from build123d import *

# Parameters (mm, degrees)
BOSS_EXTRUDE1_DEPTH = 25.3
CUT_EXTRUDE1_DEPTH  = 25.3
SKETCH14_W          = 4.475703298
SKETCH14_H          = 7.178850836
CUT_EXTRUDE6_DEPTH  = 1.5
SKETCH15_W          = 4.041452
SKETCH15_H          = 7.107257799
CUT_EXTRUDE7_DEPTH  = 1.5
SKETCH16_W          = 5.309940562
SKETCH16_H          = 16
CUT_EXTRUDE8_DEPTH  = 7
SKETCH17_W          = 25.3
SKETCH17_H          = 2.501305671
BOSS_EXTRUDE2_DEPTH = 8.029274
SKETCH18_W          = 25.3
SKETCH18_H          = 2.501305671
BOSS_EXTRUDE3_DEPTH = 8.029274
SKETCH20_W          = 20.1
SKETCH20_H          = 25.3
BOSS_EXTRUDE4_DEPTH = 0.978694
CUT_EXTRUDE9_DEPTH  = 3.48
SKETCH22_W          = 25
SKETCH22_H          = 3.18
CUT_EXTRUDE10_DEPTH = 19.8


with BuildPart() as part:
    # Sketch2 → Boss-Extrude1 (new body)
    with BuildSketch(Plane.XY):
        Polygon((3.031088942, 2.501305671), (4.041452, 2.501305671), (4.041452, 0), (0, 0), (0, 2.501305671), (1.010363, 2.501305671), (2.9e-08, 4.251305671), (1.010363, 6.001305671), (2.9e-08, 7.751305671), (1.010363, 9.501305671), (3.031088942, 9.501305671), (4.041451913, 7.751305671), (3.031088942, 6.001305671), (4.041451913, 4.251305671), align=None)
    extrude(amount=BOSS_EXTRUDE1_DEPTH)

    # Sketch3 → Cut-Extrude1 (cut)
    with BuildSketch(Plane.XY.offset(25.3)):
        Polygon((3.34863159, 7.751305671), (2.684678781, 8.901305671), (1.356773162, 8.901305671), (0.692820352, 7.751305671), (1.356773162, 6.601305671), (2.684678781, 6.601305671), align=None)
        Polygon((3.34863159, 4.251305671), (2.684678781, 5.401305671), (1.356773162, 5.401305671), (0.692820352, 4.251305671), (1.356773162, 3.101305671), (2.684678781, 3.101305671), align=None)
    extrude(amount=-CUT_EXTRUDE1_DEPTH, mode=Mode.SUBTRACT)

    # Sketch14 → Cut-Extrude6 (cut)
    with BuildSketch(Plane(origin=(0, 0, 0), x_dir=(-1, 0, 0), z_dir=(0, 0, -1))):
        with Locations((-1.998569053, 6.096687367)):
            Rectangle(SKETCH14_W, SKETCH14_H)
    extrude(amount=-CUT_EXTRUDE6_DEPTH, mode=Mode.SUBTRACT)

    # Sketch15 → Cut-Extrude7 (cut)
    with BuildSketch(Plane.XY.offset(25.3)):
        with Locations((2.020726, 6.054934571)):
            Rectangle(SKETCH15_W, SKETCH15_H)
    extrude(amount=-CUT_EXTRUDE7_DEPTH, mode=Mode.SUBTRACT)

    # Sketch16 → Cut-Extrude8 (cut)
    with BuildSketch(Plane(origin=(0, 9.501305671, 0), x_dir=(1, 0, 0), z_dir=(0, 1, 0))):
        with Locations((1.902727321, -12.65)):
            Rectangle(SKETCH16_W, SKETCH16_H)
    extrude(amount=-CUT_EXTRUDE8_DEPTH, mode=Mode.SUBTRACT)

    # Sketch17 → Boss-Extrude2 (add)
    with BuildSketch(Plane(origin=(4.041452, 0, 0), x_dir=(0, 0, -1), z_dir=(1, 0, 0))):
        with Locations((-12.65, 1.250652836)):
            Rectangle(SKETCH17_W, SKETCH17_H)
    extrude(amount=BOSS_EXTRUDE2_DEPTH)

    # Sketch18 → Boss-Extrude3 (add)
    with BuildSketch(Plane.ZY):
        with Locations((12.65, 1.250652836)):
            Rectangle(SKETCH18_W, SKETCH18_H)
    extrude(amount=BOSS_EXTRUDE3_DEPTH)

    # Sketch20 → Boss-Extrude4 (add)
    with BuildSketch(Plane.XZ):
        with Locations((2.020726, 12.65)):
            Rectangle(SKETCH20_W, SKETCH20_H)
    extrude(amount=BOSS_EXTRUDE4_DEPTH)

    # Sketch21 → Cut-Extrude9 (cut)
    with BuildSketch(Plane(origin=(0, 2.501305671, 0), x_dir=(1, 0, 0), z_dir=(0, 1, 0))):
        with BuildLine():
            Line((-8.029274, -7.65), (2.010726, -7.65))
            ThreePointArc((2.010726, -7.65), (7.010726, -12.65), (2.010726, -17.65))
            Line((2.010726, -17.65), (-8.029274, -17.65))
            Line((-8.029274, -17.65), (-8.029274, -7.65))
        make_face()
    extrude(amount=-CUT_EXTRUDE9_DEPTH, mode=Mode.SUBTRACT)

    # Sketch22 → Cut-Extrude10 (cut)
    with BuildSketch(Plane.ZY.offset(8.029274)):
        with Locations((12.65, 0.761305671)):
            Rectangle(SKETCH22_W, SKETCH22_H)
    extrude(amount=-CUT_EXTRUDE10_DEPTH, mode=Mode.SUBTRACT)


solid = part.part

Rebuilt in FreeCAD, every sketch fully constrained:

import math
import FreeCAD as App
import Part
import Sketcher
Q = App.Units.Quantity

doc = App.newDocument("Part")
body = doc.addObject("PartDesign::Body", "Body")

sketch1 = body.newObject("Sketcher::SketchObject", "Sketch")
sketch1.AttachmentSupport = (doc.getObject("XY_Plane"), [""])
sketch1.MapMode = "FlatFace"
sketch1.addGeometry([
    Part.LineSegment(App.Vector(4, 2.5, 0), App.Vector(3, 2.5, 0)),
    Part.LineSegment(App.Vector(3, 2.5, 0), App.Vector(4, 4.3, 0)),
    Part.LineSegment(App.Vector(4, 4.3, 0), App.Vector(3, 6, 0)),
    Part.LineSegment(App.Vector(3, 6, 0), App.Vector(4, 7.8, 0)),
    Part.LineSegment(App.Vector(4, 7.8, 0), App.Vector(3, 9.5, 0)),
    Part.LineSegment(App.Vector(3, 9.5, 0), App.Vector(1, 9.5, 0)),
    Part.LineSegment(App.Vector(1, 9.5, 0), App.Vector(0, 7.8, 0)),
    Part.LineSegment(App.Vector(0, 7.8, 0), App.Vector(1, 6, 0)),
    Part.LineSegment(App.Vector(1, 6, 0), App.Vector(0, 4.3, 0)),
    Part.LineSegment(App.Vector(0, 4.3, 0), App.Vector(1, 2.5, 0)),
    Part.LineSegment(App.Vector(1, 2.5, 0), App.Vector(0, 2.5, 0)),
    Part.LineSegment(App.Vector(0, 2.5, 0), App.Vector(0, 0, 0)),
    Part.LineSegment(App.Vector(0, 0, 0), App.Vector(4, 0, 0)),
    Part.LineSegment(App.Vector(4, 0, 0), App.Vector(4, 2.5, 0)),
], False)
sketch1.addConstraint([
    Sketcher.Constraint("Coincident", 0, 2, 1, 1),
    Sketcher.Constraint("Coincident", 1, 2, 2, 1),
    Sketcher.Constraint("Coincident", 2, 2, 3, 1),
    Sketcher.Constraint("Coincident", 3, 2, 4, 1),
    Sketcher.Constraint("Coincident", 4, 2, 5, 1),
    Sketcher.Constraint("Coincident", 5, 2, 6, 1),
    Sketcher.Constraint("Coincident", 6, 2, 7, 1),
    Sketcher.Constraint("Coincident", 7, 2, 8, 1),
    Sketcher.Constraint("Coincident", 8, 2, 9, 1),
    Sketcher.Constraint("Coincident", 9, 2, 10, 1),
    Sketcher.Constraint("Coincident", 10, 2, 11, 1),
    Sketcher.Constraint("Coincident", 11, 2, 12, 1),
    Sketcher.Constraint("Coincident", 12, 2, 13, 1),
    Sketcher.Constraint("Coincident", 13, 2, 0, 1),
    Sketcher.Constraint("Horizontal", 0),
    Sketcher.Constraint("Horizontal", 5),
    Sketcher.Constraint("Horizontal", 10),
    Sketcher.Constraint("Vertical", 11),
    Sketcher.Constraint("Horizontal", 12),
    Sketcher.Constraint("Vertical", 13),
    Sketcher.Constraint("Coincident", 11, 2, -1, 1),
    Sketcher.Constraint("PointOnObject", 6, 2, -2),
    Sketcher.Constraint("PointOnObject", 8, 2, -2),
    Sketcher.Constraint("Parallel", 1, 3),
    Sketcher.Constraint("Parallel", 2, 4),
    Sketcher.Constraint("Parallel", 3, 6),
    Sketcher.Constraint("Parallel", 4, 7),
    Sketcher.Constraint("Parallel", 6, 8),
    Sketcher.Constraint("Parallel", 7, 9),
    Sketcher.Constraint("Horizontal", 3, 2, 6, 2),
    Sketcher.Constraint("Horizontal", 2, 2, 7, 2),
    Sketcher.Constraint("Horizontal", 1, 2, 8, 2),
    Sketcher.Constraint("Horizontal", 0, 2, 9, 2),
    Sketcher.Constraint("Vertical", 0, 2, 2, 2),
    Sketcher.Constraint("Vertical", 1, 2, 3, 2),
    Sketcher.Constraint("Vertical", 2, 2, 4, 2),
    Sketcher.Constraint("Vertical", 3, 2, 12, 2),
    Sketcher.Constraint("Angle", 1, Q("60 deg")),
    Sketcher.Constraint("DistanceY", 0, 2, 4, 2, Q("7 mm")),
    Sketcher.Constraint("DistanceX", 12, 1, 12, 2, Q("4.041452 mm")),
    Sketcher.Constraint("DistanceY", 11, 2, 11, 1, Q("2.501306 mm")),
])
pad1 = body.newObject("PartDesign::Pad", "Pad")
pad1.Profile = sketch1
pad1.Length = 25.3

sketch2 = body.newObject("Sketcher::SketchObject", "Sketch001")
sketch2.AttachmentSupport = (doc.getObject("XY_Plane"), [""])
sketch2.MapMode = "FlatFace"
sketch2.AttachmentOffset = App.Placement(App.Vector(0, 0, 25.3), App.Rotation())
sketch2.addGeometry([
    Part.LineSegment(App.Vector(3.3, 7.8, 0), App.Vector(2.7, 8.9, 0)),
    Part.LineSegment(App.Vector(2.7, 8.9, 0), App.Vector(1.4, 8.9, 0)),
    Part.LineSegment(App.Vector(1.4, 8.9, 0), App.Vector(0.7, 7.8, 0)),
    Part.LineSegment(App.Vector(0.7, 7.8, 0), App.Vector(1.4, 6.6, 0)),
    Part.LineSegment(App.Vector(1.4, 6.6, 0), App.Vector(2.7, 6.6, 0)),
    Part.LineSegment(App.Vector(2.7, 6.6, 0), App.Vector(3.3, 7.8, 0)),
    Part.LineSegment(App.Vector(3.3, 4.3, 0), App.Vector(2.7, 5.4, 0)),
    Part.LineSegment(App.Vector(2.7, 5.4, 0), App.Vector(1.4, 5.4, 0)),
    Part.LineSegment(App.Vector(1.4, 5.4, 0), App.Vector(0.7, 4.3, 0)),
    Part.LineSegment(App.Vector(0.7, 4.3, 0), App.Vector(1.4, 3.1, 0)),
    Part.LineSegment(App.Vector(1.4, 3.1, 0), App.Vector(2.7, 3.1, 0)),
    Part.LineSegment(App.Vector(2.7, 3.1, 0), App.Vector(3.3, 4.3, 0)),
], False)
sketch2.addConstraint([
    Sketcher.Constraint("Coincident", 0, 2, 1, 1),
    Sketcher.Constraint("Coincident", 1, 2, 2, 1),
    Sketcher.Constraint("Coincident", 2, 2, 3, 1),
    Sketcher.Constraint("Coincident", 3, 2, 4, 1),
    Sketcher.Constraint("Coincident", 4, 2, 5, 1),
    Sketcher.Constraint("Coincident", 5, 2, 0, 1),
    Sketcher.Constraint("Coincident", 6, 2, 7, 1),
    Sketcher.Constraint("Coincident", 7, 2, 8, 1),
    Sketcher.Constraint("Coincident", 8, 2, 9, 1),
    Sketcher.Constraint("Coincident", 9, 2, 10, 1),
    Sketcher.Constraint("Coincident", 10, 2, 11, 1),
    Sketcher.Constraint("Coincident", 11, 2, 6, 1),
    Sketcher.Constraint("Horizontal", 1),
    Sketcher.Constraint("Horizontal", 4),
    Sketcher.Constraint("Horizontal", 7),
    Sketcher.Constraint("Horizontal", 10),
    Sketcher.Constraint("Parallel", 0, 3),
    Sketcher.Constraint("Parallel", 2, 5),
    Sketcher.Constraint("Parallel", 3, 6),
    Sketcher.Constraint("Parallel", 5, 8),
    Sketcher.Constraint("Parallel", 6, 9),
    Sketcher.Constraint("Parallel", 8, 11),
    Sketcher.Constraint("Horizontal", 2, 2, 5, 2),
    Sketcher.Constraint("Horizontal", 8, 2, 11, 2),
    Sketcher.Constraint("Vertical", 1, 2, 3, 2),
    Sketcher.Constraint("Vertical", 0, 2, 4, 2),
    Sketcher.Constraint("Vertical", 4, 2, 6, 2),
    Sketcher.Constraint("Vertical", 3, 2, 7, 2),
    Sketcher.Constraint("Vertical", 2, 2, 8, 2),
    Sketcher.Constraint("Vertical", 7, 2, 9, 2),
    Sketcher.Constraint("Angle", 0, Q("120 deg")),
    Sketcher.Constraint("DistanceY", 3, 2, 1, 2, Q("2.3 mm")),
    Sketcher.Constraint("DistanceY", 6, 2, 4, 2, Q("1.2 mm")),
    Sketcher.Constraint("DistanceX", 1, 2, 1, 1, Q("1.327906 mm")),
    Sketcher.Constraint("DistanceX", -1, 1, 0, 2, Q("2.684679 mm")),
    Sketcher.Constraint("DistanceY", -1, 1, 0, 2, Q("8.901306 mm")),
])
pocket1 = body.newObject("PartDesign::Pocket", "Pocket")
pocket1.Profile = sketch2
pocket1.Length = 25.3

sketch3 = body.newObject("Sketcher::SketchObject", "Sketch002")
sketch3.AttachmentSupport = (doc.getObject("XY_Plane"), [""])
sketch3.MapMode = "FlatFace"
sketch3.addGeometry([
    Part.LineSegment(App.Vector(4.2, 9.7, 0), App.Vector(4.2, 2.5, 0)),
    Part.LineSegment(App.Vector(4.2, 2.5, 0), App.Vector(-0.2, 2.5, 0)),
    Part.LineSegment(App.Vector(-0.2, 2.5, 0), App.Vector(-0.2, 9.7, 0)),
    Part.LineSegment(App.Vector(-0.2, 9.7, 0), App.Vector(4.2, 9.7, 0)),
], False)
sketch3.addConstraint([
    Sketcher.Constraint("Coincident", 0, 2, 1, 1),
    Sketcher.Constraint("Coincident", 1, 2, 2, 1),
    Sketcher.Constraint("Coincident", 2, 2, 3, 1),
    Sketcher.Constraint("Coincident", 3, 2, 0, 1),
    Sketcher.Constraint("Vertical", 0),
    Sketcher.Constraint("Horizontal", 1),
    Sketcher.Constraint("Vertical", 2),
    Sketcher.Constraint("Horizontal", 3),
    Sketcher.Constraint("DistanceY", 0, 2, 0, 1, Q("7.178851 mm")),
    Sketcher.Constraint("DistanceX", 1, 2, 1, 1, Q("4.475703 mm")),
    Sketcher.Constraint("DistanceX", -1, 1, 0, 2, Q("4.236421 mm")),
    Sketcher.Constraint("DistanceY", -1, 1, 0, 2, Q("2.507262 mm")),
])
pocket2 = body.newObject("PartDesign::Pocket", "Pocket001")
pocket2.Profile = sketch3
pocket2.Length = 1.5
pocket2.Reversed = True

sketch4 = body.newObject("Sketcher::SketchObject", "Sketch003")
sketch4.AttachmentSupport = (doc.getObject("XY_Plane"), [""])
sketch4.MapMode = "FlatFace"
sketch4.AttachmentOffset = App.Placement(App.Vector(0, 0, 25.3), App.Rotation())
sketch4.addGeometry([
    Part.LineSegment(App.Vector(0, 9.6, 0), App.Vector(0, 2.5, 0)),
    Part.LineSegment(App.Vector(0, 2.5, 0), App.Vector(4, 2.5, 0)),
    Part.LineSegment(App.Vector(4, 2.5, 0), App.Vector(4, 9.6, 0)),
    Part.LineSegment(App.Vector(4, 9.6, 0), App.Vector(0, 9.6, 0)),
], False)
sketch4.addConstraint([
    Sketcher.Constraint("Coincident", 0, 2, 1, 1),
    Sketcher.Constraint("Coincident", 1, 2, 2, 1),
    Sketcher.Constraint("Coincident", 2, 2, 3, 1),
    Sketcher.Constraint("Coincident", 3, 2, 0, 1),
    Sketcher.Constraint("Vertical", 0),
    Sketcher.Constraint("Horizontal", 1),
    Sketcher.Constraint("Vertical", 2),
    Sketcher.Constraint("Horizontal", 3),
    Sketcher.Constraint("PointOnObject", 0, 2, -2),
    Sketcher.Constraint("DistanceX", 1, 1, 1, 2, Q("4.041452 mm")),
    Sketcher.Constraint("DistanceY", 0, 2, 0, 1, Q("7.107258 mm")),
    Sketcher.Constraint("DistanceY", -1, 1, 0, 2, Q("2.501306 mm")),
])
pocket3 = body.newObject("PartDesign::Pocket", "Pocket002")
pocket3.Profile = sketch4
pocket3.Length = 1.5

sketch5 = body.newObject("Sketcher::SketchObject", "Sketch004")
sketch5.AttachmentSupport = (doc.getObject("XZ_Plane"), [""])
sketch5.MapMode = "FlatFace"
sketch5.AttachmentOffset = App.Placement(App.Vector(0, 0, -9.501306), App.Rotation())
sketch5.addGeometry([
    Part.LineSegment(App.Vector(-1, 5, 0), App.Vector(-1, 21, 0)),
    Part.LineSegment(App.Vector(-1, 21, 0), App.Vector(5, 21, 0)),
    Part.LineSegment(App.Vector(5, 21, 0), App.Vector(5, 5, 0)),
    Part.LineSegment(App.Vector(5, 5, 0), App.Vector(-1, 5, 0)),
], False)
sketch5.addConstraint([
    Sketcher.Constraint("Coincident", 0, 2, 1, 1),
    Sketcher.Constraint("Coincident", 1, 2, 2, 1),
    Sketcher.Constraint("Coincident", 2, 2, 3, 1),
    Sketcher.Constraint("Coincident", 3, 2, 0, 1),
    Sketcher.Constraint("Vertical", 0),
    Sketcher.Constraint("Horizontal", 1),
    Sketcher.Constraint("Vertical", 2),
    Sketcher.Constraint("Horizontal", 3),
    Sketcher.Constraint("DistanceY", 0, 1, 0, 2, Q("16 mm")),
    Sketcher.Constraint("DistanceY", -1, 1, 0, 2, Q("20.65 mm")),
    Sketcher.Constraint("DistanceX", 1, 1, 1, 2, Q("5.309941 mm")),
    Sketcher.Constraint("DistanceX", 0, 2, -1, 1, Q("0.752243 mm")),
])
pocket4 = body.newObject("PartDesign::Pocket", "Pocket003")
pocket4.Profile = sketch5
pocket4.Length = 7
pocket4.Reversed = True

sketch6 = body.newObject("Sketcher::SketchObject", "Sketch005")
sketch6.AttachmentSupport = (doc.getObject("YZ_Plane"), [""])
sketch6.MapMode = "FlatFace"
sketch6.AttachmentOffset = App.Placement(App.Vector(0, 0, 4.041452), App.Rotation())
sketch6.addGeometry([
    Part.LineSegment(App.Vector(2.5, 25.3, 0), App.Vector(0, 25.3, 0)),
    Part.LineSegment(App.Vector(0, 25.3, 0), App.Vector(0, 0, 0)),
    Part.LineSegment(App.Vector(0, 0, 0), App.Vector(2.5, 0, 0)),
    Part.LineSegment(App.Vector(2.5, 0, 0), App.Vector(2.5, 25.3, 0)),
], False)
sketch6.addConstraint([
    Sketcher.Constraint("Coincident", 0, 2, 1, 1),
    Sketcher.Constraint("Coincident", 1, 2, 2, 1),
    Sketcher.Constraint("Coincident", 2, 2, 3, 1),
    Sketcher.Constraint("Coincident", 3, 2, 0, 1),
    Sketcher.Constraint("Horizontal", 0),
    Sketcher.Constraint("Vertical", 1),
    Sketcher.Constraint("Horizontal", 2),
    Sketcher.Constraint("Vertical", 3),
    Sketcher.Constraint("Coincident", 1, 2, -1, 1),
    Sketcher.Constraint("DistanceY", 1, 2, 1, 1, Q("25.3 mm")),
    Sketcher.Constraint("DistanceX", 0, 2, 0, 1, Q("2.501306 mm")),
])
pad2 = body.newObject("PartDesign::Pad", "Pad001")
pad2.Profile = sketch6
pad2.Length = 8.029274

sketch7 = body.newObject("Sketcher::SketchObject", "Sketch006")
sketch7.AttachmentSupport = (doc.getObject("YZ_Plane"), [""])
sketch7.MapMode = "FlatFace"
sketch7.addGeometry([
    Part.LineSegment(App.Vector(2.5, 0, 0), App.Vector(0, 0, 0)),
    Part.LineSegment(App.Vector(0, 0, 0), App.Vector(0, 25.3, 0)),
    Part.LineSegment(App.Vector(0, 25.3, 0), App.Vector(2.5, 25.3, 0)),
    Part.LineSegment(App.Vector(2.5, 25.3, 0), App.Vector(2.5, 0, 0)),
], False)
sketch7.addConstraint([
    Sketcher.Constraint("Coincident", 0, 2, 1, 1),
    Sketcher.Constraint("Coincident", 1, 2, 2, 1),
    Sketcher.Constraint("Coincident", 2, 2, 3, 1),
    Sketcher.Constraint("Coincident", 3, 2, 0, 1),
    Sketcher.Constraint("Horizontal", 0),
    Sketcher.Constraint("Vertical", 1),
    Sketcher.Constraint("Horizontal", 2),
    Sketcher.Constraint("Vertical", 3),
    Sketcher.Constraint("Coincident", 0, 2, -1, 1),
    Sketcher.Constraint("DistanceY", 1, 1, 1, 2, Q("25.3 mm")),
    Sketcher.Constraint("DistanceX", 0, 2, 0, 1, Q("2.501306 mm")),
])
pad3 = body.newObject("PartDesign::Pad", "Pad002")
pad3.Profile = sketch7
pad3.Length = 8.029274
pad3.Reversed = True

sketch8 = body.newObject("Sketcher::SketchObject", "Sketch007")
sketch8.AttachmentSupport = (doc.getObject("XZ_Plane"), [""])
sketch8.MapMode = "FlatFace"
sketch8.addGeometry([
    Part.LineSegment(App.Vector(-8, 25, 0), App.Vector(-8, 0, 0)),
    Part.LineSegment(App.Vector(-8, 0, 0), App.Vector(12, 0, 0)),
    Part.LineSegment(App.Vector(12, 0, 0), App.Vector(12, 25, 0)),
    Part.LineSegment(App.Vector(12, 25, 0), App.Vector(-8, 25, 0)),
], False)
sketch8.addConstraint([
    Sketcher.Constraint("Coincident", 0, 2, 1, 1),
    Sketcher.Constraint("Coincident", 1, 2, 2, 1),
    Sketcher.Constraint("Coincident", 2, 2, 3, 1),
    Sketcher.Constraint("Coincident", 3, 2, 0, 1),
    Sketcher.Constraint("Vertical", 0),
    Sketcher.Constraint("Horizontal", 1),
    Sketcher.Constraint("Vertical", 2),
    Sketcher.Constraint("Horizontal", 3),
    Sketcher.Constraint("PointOnObject", 0, 2, -1),
    Sketcher.Constraint("DistanceX", 1, 1, 1, 2, Q("20.1 mm")),
    Sketcher.Constraint("DistanceY", 0, 2, 0, 1, Q("25.3 mm")),
    Sketcher.Constraint("DistanceX", 0, 2, -1, 1, Q("8.029274 mm")),
])
pad4 = body.newObject("PartDesign::Pad", "Pad003")
pad4.Profile = sketch8
pad4.Length = 0.978694

sketch9 = body.newObject("Sketcher::SketchObject", "Sketch008")
sketch9.AttachmentSupport = (doc.getObject("XZ_Plane"), [""])
sketch9.MapMode = "FlatFace"
sketch9.AttachmentOffset = App.Placement(App.Vector(0, 0, -2.501306), App.Rotation())
sketch9.addGeometry([
    Part.LineSegment(App.Vector(2, 8, 0), App.Vector(-8, 8, 0)),
    Part.LineSegment(App.Vector(-8, 8, 0), App.Vector(-8, 18, 0)),
    Part.LineSegment(App.Vector(-8, 18, 0), App.Vector(2, 18, 0)),
    Part.ArcOfCircle(Part.Circle(App.Vector(2, 13, 0), App.Vector(0, 0, 1), 5), math.radians(-90), math.radians(90)),
], False)
sketch9.addConstraint([
    Sketcher.Constraint("Coincident", 0, 2, 1, 1),
    Sketcher.Constraint("Coincident", 1, 2, 2, 1),
    Sketcher.Constraint("Tangent", 2, 2, 3, 2),
    Sketcher.Constraint("Tangent", 3, 1, 0, 1),
    Sketcher.Constraint("Horizontal", 0),
    Sketcher.Constraint("Vertical", 1),
    Sketcher.Constraint("Horizontal", 2),
    Sketcher.Constraint("Radius", 3, Q("5 mm")),
    Sketcher.Constraint("DistanceX", 0, 2, 0, 1, Q("10.04 mm")),
    Sketcher.Constraint("DistanceY", -1, 1, 3, 3, Q("12.65 mm")),
    Sketcher.Constraint("DistanceX", -1, 1, 3, 3, Q("2.010726 mm")),
])
pocket5 = body.newObject("PartDesign::Pocket", "Pocket004")
pocket5.Profile = sketch9
pocket5.Length = 3.48
pocket5.Reversed = True

sketch10 = body.newObject("Sketcher::SketchObject", "Sketch009")
sketch10.AttachmentSupport = (doc.getObject("YZ_Plane"), [""])
sketch10.MapMode = "FlatFace"
sketch10.AttachmentOffset = App.Placement(App.Vector(0, 0, -8.029274), App.Rotation())
sketch10.addGeometry([
    Part.LineSegment(App.Vector(2.4, 0.1, 0), App.Vector(-0.8, 0.1, 0)),
    Part.LineSegment(App.Vector(-0.8, 0.1, 0), App.Vector(-0.8, 25.1, 0)),
    Part.LineSegment(App.Vector(-0.8, 25.1, 0), App.Vector(2.4, 25.1, 0)),
    Part.LineSegment(App.Vector(2.4, 25.1, 0), App.Vector(2.4, 0.1, 0)),
], False)
sketch10.addConstraint([
    Sketcher.Constraint("Coincident", 0, 2, 1, 1),
    Sketcher.Constraint("Coincident", 1, 2, 2, 1),
    Sketcher.Constraint("Coincident", 2, 2, 3, 1),
    Sketcher.Constraint("Coincident", 3, 2, 0, 1),
    Sketcher.Constraint("Horizontal", 0),
    Sketcher.Constraint("Vertical", 1),
    Sketcher.Constraint("Horizontal", 2),
    Sketcher.Constraint("Vertical", 3),
    Sketcher.Constraint("DistanceY", 1, 1, 1, 2, Q("25 mm")),
    Sketcher.Constraint("DistanceX", 0, 2, 0, 1, Q("3.18 mm")),
    Sketcher.Constraint("DistanceY", -1, 1, 0, 2, Q("0.15 mm")),
    Sketcher.Constraint("DistanceX", 0, 2, -1, 1, Q("0.828694 mm")),
])
pocket6 = body.newObject("PartDesign::Pocket", "Pocket005")
pocket6.Profile = sketch10
pocket6.Length = 19.8
pocket6.Reversed = True

doc.recompute()
